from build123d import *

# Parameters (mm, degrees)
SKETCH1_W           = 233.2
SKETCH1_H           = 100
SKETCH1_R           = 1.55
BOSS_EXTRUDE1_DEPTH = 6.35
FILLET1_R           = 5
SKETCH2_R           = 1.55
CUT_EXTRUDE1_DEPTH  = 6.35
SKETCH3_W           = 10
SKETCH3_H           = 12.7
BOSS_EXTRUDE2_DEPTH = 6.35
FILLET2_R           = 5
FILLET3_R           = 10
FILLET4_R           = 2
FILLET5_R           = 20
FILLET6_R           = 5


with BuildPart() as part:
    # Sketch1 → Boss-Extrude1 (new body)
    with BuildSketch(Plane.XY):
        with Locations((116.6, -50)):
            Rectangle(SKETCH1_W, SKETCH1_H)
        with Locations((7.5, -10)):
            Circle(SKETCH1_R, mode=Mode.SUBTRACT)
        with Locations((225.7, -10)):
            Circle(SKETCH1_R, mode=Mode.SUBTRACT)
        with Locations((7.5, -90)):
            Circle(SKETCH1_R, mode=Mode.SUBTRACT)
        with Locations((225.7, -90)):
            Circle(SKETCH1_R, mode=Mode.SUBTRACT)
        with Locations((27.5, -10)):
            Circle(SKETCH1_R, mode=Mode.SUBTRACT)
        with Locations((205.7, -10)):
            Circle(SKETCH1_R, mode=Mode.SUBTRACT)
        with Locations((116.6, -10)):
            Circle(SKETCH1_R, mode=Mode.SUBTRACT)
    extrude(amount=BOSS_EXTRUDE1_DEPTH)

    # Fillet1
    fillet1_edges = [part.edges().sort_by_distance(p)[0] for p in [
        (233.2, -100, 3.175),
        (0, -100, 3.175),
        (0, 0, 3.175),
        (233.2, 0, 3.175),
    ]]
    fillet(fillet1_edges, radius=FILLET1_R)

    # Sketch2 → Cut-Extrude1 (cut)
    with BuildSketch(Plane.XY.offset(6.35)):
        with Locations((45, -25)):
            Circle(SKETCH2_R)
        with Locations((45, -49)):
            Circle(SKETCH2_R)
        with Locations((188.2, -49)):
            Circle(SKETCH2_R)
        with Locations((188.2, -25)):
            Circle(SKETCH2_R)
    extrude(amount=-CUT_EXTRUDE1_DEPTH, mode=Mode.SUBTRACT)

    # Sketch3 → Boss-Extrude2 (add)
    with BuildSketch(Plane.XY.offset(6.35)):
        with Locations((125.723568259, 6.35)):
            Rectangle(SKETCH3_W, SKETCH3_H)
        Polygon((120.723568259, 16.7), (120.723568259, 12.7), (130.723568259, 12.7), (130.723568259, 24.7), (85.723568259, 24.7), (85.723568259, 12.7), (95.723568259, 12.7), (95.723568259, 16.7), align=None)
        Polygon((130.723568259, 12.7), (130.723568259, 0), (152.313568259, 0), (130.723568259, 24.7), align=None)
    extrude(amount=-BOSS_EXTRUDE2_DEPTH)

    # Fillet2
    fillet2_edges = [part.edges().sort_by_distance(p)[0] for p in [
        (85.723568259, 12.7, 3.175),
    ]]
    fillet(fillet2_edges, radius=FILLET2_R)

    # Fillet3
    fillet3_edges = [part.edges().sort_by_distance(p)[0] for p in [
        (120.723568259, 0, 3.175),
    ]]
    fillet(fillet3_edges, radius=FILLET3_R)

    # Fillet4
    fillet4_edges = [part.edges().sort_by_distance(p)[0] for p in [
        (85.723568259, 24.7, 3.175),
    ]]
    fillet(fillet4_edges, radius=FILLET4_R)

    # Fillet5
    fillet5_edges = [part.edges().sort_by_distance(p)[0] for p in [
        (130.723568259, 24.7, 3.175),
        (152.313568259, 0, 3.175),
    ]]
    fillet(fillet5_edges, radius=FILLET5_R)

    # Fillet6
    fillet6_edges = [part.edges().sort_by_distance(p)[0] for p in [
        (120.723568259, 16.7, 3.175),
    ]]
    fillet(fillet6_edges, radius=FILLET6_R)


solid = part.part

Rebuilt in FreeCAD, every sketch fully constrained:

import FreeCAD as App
import Part
import Sketcher
from FreeCAD import Vector
Q = App.Units.Quantity


def edges_at(feature, points):
    """Names of the edges that pass closest to the given points."""
    edges = feature.Shape.Edges
    near = lambda p: min(range(len(edges)), key=lambda i: edges[i].distToShape(Part.Vertex(*p))[0])
    return sorted({f"Edge{near(p) + 1}" for p in points})

doc = App.newDocument("Part")
body = doc.addObject("PartDesign::Body", "Body")

sketch1 = doc.addObject("Sketcher::SketchObject", "Sketch")
body.addObject(sketch1)
sketch1.AttachmentSupport = (doc.XY_Plane, [""])
sketch1.MapMode = "FlatFace"
sketch1.addGeometry([
    Part.LineSegment(Vector(0, 0, 0), Vector(0, -100, 0)),
    Part.LineSegment(Vector(0, -100, 0), Vector(233.2, -100, 0)),
    Part.LineSegment(Vector(233.2, -100, 0), Vector(233.2, 0, 0)),
    Part.LineSegment(Vector(233.2, 0, 0), Vector(0, 0, 0)),
    Part.Circle(Vector(7.5, -90, 0), Vector(0, 0, 1), 1.6),
    Part.Circle(Vector(225.7, -90, 0), Vector(0, 0, 1), 1.6),
    Part.Circle(Vector(7.5, -10, 0), Vector(0, 0, 1), 1.6),
    Part.Circle(Vector(27.5, -10, 0), Vector(0, 0, 1), 1.6),
    Part.Circle(Vector(116.6, -10, 0), Vector(0, 0, 1), 1.6),
    Part.Circle(Vector(205.7, -10, 0), Vector(0, 0, 1), 1.6),
    Part.Circle(Vector(225.7, -10, 0), Vector(0, 0, 1), 1.6),
], False)
sketch1.addConstraint([
    Sketcher.Constraint("Coincident", 0, 2, 1, 1),
    Sketcher.Constraint("Coincident", 1, 2, 2, 1),
    Sketcher.Constraint("Coincident", 2, 2, 3, 1),
    Sketcher.Constraint("Coincident", 3, 2, 0, 1),
    Sketcher.Constraint("Vertical", 0),
    Sketcher.Constraint("Horizontal", 1),
    Sketcher.Constraint("Vertical", 2),
    Sketcher.Constraint("Horizontal", 3),
    Sketcher.Constraint("Coincident", 3, 2, -1, 1),
    Sketcher.Constraint("Equal", 4, 5),
    Sketcher.Constraint("Equal", 5, 6),
    Sketcher.Constraint("Equal", 6, 7),
    Sketcher.Constraint("Equal", 7, 8),
    Sketcher.Constraint("Equal", 8, 9),
    Sketcher.Constraint("Equal", 9, 10),
    Sketcher.Constraint("Horizontal", 4, 3, 5, 3),
    Sketcher.Constraint("Horizontal", 6, 3, 7, 3),
    Sketcher.Constraint("Horizontal", 7, 3, 8, 3),
    Sketcher.Constraint("Horizontal", 8, 3, 9, 3),
    Sketcher.Constraint("Horizontal", 9, 3, 10, 3),
    Sketcher.Constraint("Vertical", 4, 3, 6, 3),
    Sketcher.Constraint("Vertical", 5, 3, 10, 3),
    Sketcher.Constraint("Diameter", 4, Q("3.1 mm")),
    Sketcher.Constraint("DistanceY", 0, 2, 0, 1, Q("100 mm")),
    Sketcher.Constraint("DistanceX", 1, 1, 1, 2, Q("233.2 mm")),
    Sketcher.Constraint("DistanceY", 4, 3, -1, 1, Q("90 mm")),
    Sketcher.Constraint("DistanceY", 6, 3, -1, 1, Q("10 mm")),
    Sketcher.Constraint("DistanceX", 6, 3, 7, 3, Q("20 mm")),
    Sketcher.Constraint("DistanceX", 9, 3, 5, 3, Q("20 mm")),
    Sketcher.Constraint("DistanceX", -1, 1, 4, 3, Q("7.5 mm")),
    Sketcher.Constraint("DistanceX", -1, 1, 5, 3, Q("225.7 mm")),
    Sketcher.Constraint("DistanceX", -1, 1, 8, 3, Q("116.6 mm")),
])
pad1 = doc.addObject("PartDesign::Pad", "Pad")
body.addObject(pad1)
pad1.Profile = sketch1
pad1.Length = 6.35
doc.recompute()

fillet = doc.addObject("PartDesign::Fillet", "Fillet")
body.addObject(fillet)
fillet.Base = (pad1, edges_at(pad1, [
    (233.2, -100, 3.175),
    (0, -100, 3.175),
    (0, 0, 3.175),
    (233.2, 0, 3.175),
]))
fillet.Radius = 5

sketch2 = doc.addObject("Sketcher::SketchObject", "Sketch001")
body.addObject(sketch2)
sketch2.AttachmentSupport = (doc.XY_Plane, [""])
sketch2.MapMode = "FlatFace"
sketch2.AttachmentOffset = App.Placement(Vector(0, 0, 6.35), App.Rotation())
sketch2.addGeometry([
    Part.Circle(Vector(45, -25, 0), Vector(0, 0, 1), 1.6),
    Part.Circle(Vector(45, -49, 0), Vector(0, 0, 1), 1.6),
    Part.Circle(Vector(188.2, -49, 0), Vector(0, 0, 1), 1.6),
    Part.Circle(Vector(188.2, -25, 0), Vector(0, 0, 1), 1.6),
], False)
sketch2.addConstraint([
    Sketcher.Constraint("Equal", 0, 1),
    Sketcher.Constraint("Equal", 1, 2),
    Sketcher.Constraint("Equal", 2, 3),
    Sketcher.Constraint("Horizontal", 1, 3, 2, 3),
    Sketcher.Constraint("Horizontal", 0, 3, 3, 3),
    Sketcher.Constraint("Vertical", 0, 3, 1, 3),
    Sketcher.Constraint("Vertical", 2, 3, 3, 3),
    Sketcher.Constraint("Diameter", 0, Q("3.1 mm")),
    Sketcher.Constraint("DistanceX", -1, 1, 0, 3, Q("45 mm")),
    Sketcher.Constraint("DistanceY", 0, 3, -1, 1, Q("25 mm")),
    Sketcher.Constraint("DistanceY", 1, 3, -1, 1, Q("49 mm")),
    Sketcher.Constraint("DistanceX", -1, 1, 2, 3, Q("188.2 mm")),
])
pocket1 = doc.addObject("PartDesign::Pocket", "Pocket")
body.addObject(pocket1)
pocket1.Profile = sketch2
pocket1.Length = 6.35

sketch3 = doc.addObject("Sketcher::SketchObject", "Sketch002")
body.addObject(sketch3)
sketch3.AttachmentSupport = (doc.XY_Plane, [""])
sketch3.MapMode = "FlatFace"
sketch3.AttachmentOffset = App.Placement(Vector(0, 0, 6.35), App.Rotation())
sketch3.addGeometry([
    Part.LineSegment(Vector(120.7, 0, 0), Vector(152.3, 0, 0)),
    Part.LineSegment(Vector(152.3, 0, 0), Vector(130.7, 24.7, 0)),
    Part.LineSegment(Vector(130.7, 24.7, 0), Vector(85.7, 24.7, 0)),
    Part.LineSegment(Vector(85.7, 24.7, 0), Vector(85.7, 12.7, 0)),
    Part.LineSegment(Vector(85.7, 12.7, 0), Vector(95.7, 12.7, 0)),
    Part.LineSegment(Vector(95.7, 12.7, 0), Vector(95.7, 16.7, 0)),
    Part.LineSegment(Vector(95.7, 16.7, 0), Vector(120.7, 16.7, 0)),
    Part.LineSegment(Vector(120.7, 16.7, 0), Vector(120.7, 0, 0)),
], False)
sketch3.addConstraint([
    Sketcher.Constraint("Coincident", 0, 2, 1, 1),
    Sketcher.Constraint("Coincident", 1, 2, 2, 1),
    Sketcher.Constraint("Coincident", 2, 2, 3, 1),
    Sketcher.Constraint("Coincident", 3, 2, 4, 1),
    Sketcher.Constraint("Coincident", 4, 2, 5, 1),
    Sketcher.Constraint("Coincident", 5, 2, 6, 1),
    Sketcher.Constraint("Coincident", 6, 2, 7, 1),
    Sketcher.Constraint("Coincident", 7, 2, 0, 1),
    Sketcher.Constraint("Horizontal", 0),
    Sketcher.Constraint("Horizontal", 2),
    Sketcher.Constraint("Vertical", 3),
    Sketcher.Constraint("Horizontal", 4),
    Sketcher.Constraint("Vertical", 5),
    Sketcher.Constraint("Horizontal", 6),
    Sketcher.Constraint("Vertical", 7),
    Sketcher.Constraint("PointOnObject", 0, 2, -1),
    Sketcher.Constraint("DistanceX", 2, 2, 2, 1, Q("45 mm")),
    Sketcher.Constraint("DistanceX", 4, 1, 4, 2, Q("10 mm")),
    Sketcher.Constraint("DistanceX", 6, 1, 6, 2, Q("25 mm")),
    Sketcher.Constraint("DistanceY", 3, 2, 3, 1, Q("12 mm")),
    Sketcher.Constraint("DistanceY", 5, 1, 5, 2, Q("4 mm")),
    Sketcher.Constraint("DistanceY", 7, 2, 7, 1, Q("16.7 mm")),
    Sketcher.Constraint("DistanceX", 0, 1, 0, 2, Q("31.59 mm")),
    Sketcher.Constraint("DistanceX", -1, 1, 0, 2, Q("152.313568 mm")),
])
pad2 = doc.addObject("PartDesign::Pad", "Pad001")
body.addObject(pad2)
pad2.Profile = sketch3
pad2.Length = 6.35
pad2.Reversed = True
doc.recompute()

fillet2 = doc.addObject("PartDesign::Fillet", "Fillet001")
body.addObject(fillet2)
fillet2.Base = (pad2, edges_at(pad2, [(85.724, 12.7, 3.175)]))
fillet2.Radius = 5
doc.recompute()

fillet3 = doc.addObject("PartDesign::Fillet", "Fillet002")
body.addObject(fillet3)
fillet3.Base = (fillet2, edges_at(fillet2, [(120.724, 0, 3.175)]))
fillet3.Radius = 10
doc.recompute()

fillet4 = doc.addObject("PartDesign::Fillet", "Fillet003")
body.addObject(fillet4)
fillet4.Base = (fillet3, edges_at(fillet3, [(85.724, 24.7, 3.175)]))
fillet4.Radius = 2
doc.recompute()

fillet5 = doc.addObject("PartDesign::Fillet", "Fillet004")
body.addObject(fillet5)
fillet5.Base = (fillet4, edges_at(fillet4, [(130.724, 24.7, 3.175), (152.314, 0, 3.175)]))
fillet5.Radius = 20
doc.recompute()

fillet6 = doc.addObject("PartDesign::Fillet", "Fillet005")
body.addObject(fillet6)
fillet6.Base = (fillet5, edges_at(fillet5, [(120.724, 16.7, 3.175)]))
fillet6.Radius = 5

doc.recompute()
